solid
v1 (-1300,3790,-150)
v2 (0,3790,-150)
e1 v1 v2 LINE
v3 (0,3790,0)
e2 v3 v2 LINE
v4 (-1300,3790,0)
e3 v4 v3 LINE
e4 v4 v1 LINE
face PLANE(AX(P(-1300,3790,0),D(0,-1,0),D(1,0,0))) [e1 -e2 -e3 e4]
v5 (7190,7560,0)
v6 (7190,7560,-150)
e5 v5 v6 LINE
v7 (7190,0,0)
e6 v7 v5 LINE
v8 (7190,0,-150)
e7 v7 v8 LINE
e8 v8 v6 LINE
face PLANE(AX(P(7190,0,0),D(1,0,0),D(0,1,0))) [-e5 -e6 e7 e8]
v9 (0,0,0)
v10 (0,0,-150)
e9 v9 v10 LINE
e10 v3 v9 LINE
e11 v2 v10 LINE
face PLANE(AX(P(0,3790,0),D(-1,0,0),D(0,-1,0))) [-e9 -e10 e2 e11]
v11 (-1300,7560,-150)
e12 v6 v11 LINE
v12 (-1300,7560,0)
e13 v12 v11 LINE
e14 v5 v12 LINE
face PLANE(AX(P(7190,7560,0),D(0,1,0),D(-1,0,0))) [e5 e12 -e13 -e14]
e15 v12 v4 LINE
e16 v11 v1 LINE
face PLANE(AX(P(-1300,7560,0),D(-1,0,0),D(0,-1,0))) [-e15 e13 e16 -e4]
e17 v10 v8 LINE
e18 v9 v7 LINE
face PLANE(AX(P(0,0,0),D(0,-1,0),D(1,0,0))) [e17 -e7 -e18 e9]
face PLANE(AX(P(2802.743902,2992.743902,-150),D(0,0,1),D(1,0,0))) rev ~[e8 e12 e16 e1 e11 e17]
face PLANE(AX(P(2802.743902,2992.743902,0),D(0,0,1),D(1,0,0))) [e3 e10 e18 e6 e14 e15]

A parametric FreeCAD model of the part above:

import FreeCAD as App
import Part
import Sketcher
from FreeCAD import Vector

doc = App.newDocument("Part")
body = doc.addObject("PartDesign::Body", "Body")

# Sketch on XY plane
sketch1 = body.newObject("Sketcher::SketchObject", "Sketch")
sketch1.AttachmentSupport = (doc.getObject("XY_Plane"), [""])
sketch1.MapMode = "FlatFace"
sketch1.addGeometry(Part.LineSegment(Vector(0, 3790, 0), Vector(0, 0, 0)), False)
sketch1.addGeometry(Part.LineSegment(Vector(0, 0, 0), Vector(7190, 0, 0)), False)
sketch1.addGeometry(Part.LineSegment(Vector(7190, 0, 0), Vector(7190, 7560, 0)), False)
sketch1.addGeometry(Part.LineSegment(Vector(7190, 7560, 0), Vector(-1300, 7560, 0)), False)
sketch1.addGeometry(Part.LineSegment(Vector(-1300, 7560, 0), Vector(-1300, 3790, 0)), False)
sketch1.addGeometry(Part.LineSegment(Vector(-1300, 3790, 0), Vector(0, 3790, 0)), False)
sketch1.addConstraint(Sketcher.Constraint("Coincident", 0, 2, 1, 1))
sketch1.addConstraint(Sketcher.Constraint("Coincident", 1, 2, 2, 1))
sketch1.addConstraint(Sketcher.Constraint("Coincident", 2, 2, 3, 1))
sketch1.addConstraint(Sketcher.Constraint("Coincident", 3, 2, 4, 1))
sketch1.addConstraint(Sketcher.Constraint("Coincident", 4, 2, 5, 1))
sketch1.addConstraint(Sketcher.Constraint("Coincident", 5, 2, 0, 1))
sketch1.addConstraint(Sketcher.Constraint("Vertical", 0))
sketch1.addConstraint(Sketcher.Constraint("Horizontal", 1))
sketch1.addConstraint(Sketcher.Constraint("Vertical", 2))
sketch1.addConstraint(Sketcher.Constraint("Horizontal", 3))
sketch1.addConstraint(Sketcher.Constraint("Vertical", 4))
sketch1.addConstraint(Sketcher.Constraint("Horizontal", 5))
sketch1.addConstraint(Sketcher.Constraint("Coincident", 0, 2, -1, 1))
sketch1.addConstraint(Sketcher.Constraint("DistanceX", 1, 1, 1, 2, 7190.0))
sketch1.addConstraint(Sketcher.Constraint("DistanceX", 3, 2, 3, 1, 8490.0))
sketch1.addConstraint(Sketcher.Constraint("DistanceY", 0, 2, 0, 1, 3790.0))
sketch1.addConstraint(Sketcher.Constraint("DistanceY", 2, 1, 2, 2, 7560.0))
pad1 = body.newObject("PartDesign::Pad", "Pad")
pad1.Profile = sketch1
pad1.Length = 150
pad1.Reversed = True

doc.recompute()
